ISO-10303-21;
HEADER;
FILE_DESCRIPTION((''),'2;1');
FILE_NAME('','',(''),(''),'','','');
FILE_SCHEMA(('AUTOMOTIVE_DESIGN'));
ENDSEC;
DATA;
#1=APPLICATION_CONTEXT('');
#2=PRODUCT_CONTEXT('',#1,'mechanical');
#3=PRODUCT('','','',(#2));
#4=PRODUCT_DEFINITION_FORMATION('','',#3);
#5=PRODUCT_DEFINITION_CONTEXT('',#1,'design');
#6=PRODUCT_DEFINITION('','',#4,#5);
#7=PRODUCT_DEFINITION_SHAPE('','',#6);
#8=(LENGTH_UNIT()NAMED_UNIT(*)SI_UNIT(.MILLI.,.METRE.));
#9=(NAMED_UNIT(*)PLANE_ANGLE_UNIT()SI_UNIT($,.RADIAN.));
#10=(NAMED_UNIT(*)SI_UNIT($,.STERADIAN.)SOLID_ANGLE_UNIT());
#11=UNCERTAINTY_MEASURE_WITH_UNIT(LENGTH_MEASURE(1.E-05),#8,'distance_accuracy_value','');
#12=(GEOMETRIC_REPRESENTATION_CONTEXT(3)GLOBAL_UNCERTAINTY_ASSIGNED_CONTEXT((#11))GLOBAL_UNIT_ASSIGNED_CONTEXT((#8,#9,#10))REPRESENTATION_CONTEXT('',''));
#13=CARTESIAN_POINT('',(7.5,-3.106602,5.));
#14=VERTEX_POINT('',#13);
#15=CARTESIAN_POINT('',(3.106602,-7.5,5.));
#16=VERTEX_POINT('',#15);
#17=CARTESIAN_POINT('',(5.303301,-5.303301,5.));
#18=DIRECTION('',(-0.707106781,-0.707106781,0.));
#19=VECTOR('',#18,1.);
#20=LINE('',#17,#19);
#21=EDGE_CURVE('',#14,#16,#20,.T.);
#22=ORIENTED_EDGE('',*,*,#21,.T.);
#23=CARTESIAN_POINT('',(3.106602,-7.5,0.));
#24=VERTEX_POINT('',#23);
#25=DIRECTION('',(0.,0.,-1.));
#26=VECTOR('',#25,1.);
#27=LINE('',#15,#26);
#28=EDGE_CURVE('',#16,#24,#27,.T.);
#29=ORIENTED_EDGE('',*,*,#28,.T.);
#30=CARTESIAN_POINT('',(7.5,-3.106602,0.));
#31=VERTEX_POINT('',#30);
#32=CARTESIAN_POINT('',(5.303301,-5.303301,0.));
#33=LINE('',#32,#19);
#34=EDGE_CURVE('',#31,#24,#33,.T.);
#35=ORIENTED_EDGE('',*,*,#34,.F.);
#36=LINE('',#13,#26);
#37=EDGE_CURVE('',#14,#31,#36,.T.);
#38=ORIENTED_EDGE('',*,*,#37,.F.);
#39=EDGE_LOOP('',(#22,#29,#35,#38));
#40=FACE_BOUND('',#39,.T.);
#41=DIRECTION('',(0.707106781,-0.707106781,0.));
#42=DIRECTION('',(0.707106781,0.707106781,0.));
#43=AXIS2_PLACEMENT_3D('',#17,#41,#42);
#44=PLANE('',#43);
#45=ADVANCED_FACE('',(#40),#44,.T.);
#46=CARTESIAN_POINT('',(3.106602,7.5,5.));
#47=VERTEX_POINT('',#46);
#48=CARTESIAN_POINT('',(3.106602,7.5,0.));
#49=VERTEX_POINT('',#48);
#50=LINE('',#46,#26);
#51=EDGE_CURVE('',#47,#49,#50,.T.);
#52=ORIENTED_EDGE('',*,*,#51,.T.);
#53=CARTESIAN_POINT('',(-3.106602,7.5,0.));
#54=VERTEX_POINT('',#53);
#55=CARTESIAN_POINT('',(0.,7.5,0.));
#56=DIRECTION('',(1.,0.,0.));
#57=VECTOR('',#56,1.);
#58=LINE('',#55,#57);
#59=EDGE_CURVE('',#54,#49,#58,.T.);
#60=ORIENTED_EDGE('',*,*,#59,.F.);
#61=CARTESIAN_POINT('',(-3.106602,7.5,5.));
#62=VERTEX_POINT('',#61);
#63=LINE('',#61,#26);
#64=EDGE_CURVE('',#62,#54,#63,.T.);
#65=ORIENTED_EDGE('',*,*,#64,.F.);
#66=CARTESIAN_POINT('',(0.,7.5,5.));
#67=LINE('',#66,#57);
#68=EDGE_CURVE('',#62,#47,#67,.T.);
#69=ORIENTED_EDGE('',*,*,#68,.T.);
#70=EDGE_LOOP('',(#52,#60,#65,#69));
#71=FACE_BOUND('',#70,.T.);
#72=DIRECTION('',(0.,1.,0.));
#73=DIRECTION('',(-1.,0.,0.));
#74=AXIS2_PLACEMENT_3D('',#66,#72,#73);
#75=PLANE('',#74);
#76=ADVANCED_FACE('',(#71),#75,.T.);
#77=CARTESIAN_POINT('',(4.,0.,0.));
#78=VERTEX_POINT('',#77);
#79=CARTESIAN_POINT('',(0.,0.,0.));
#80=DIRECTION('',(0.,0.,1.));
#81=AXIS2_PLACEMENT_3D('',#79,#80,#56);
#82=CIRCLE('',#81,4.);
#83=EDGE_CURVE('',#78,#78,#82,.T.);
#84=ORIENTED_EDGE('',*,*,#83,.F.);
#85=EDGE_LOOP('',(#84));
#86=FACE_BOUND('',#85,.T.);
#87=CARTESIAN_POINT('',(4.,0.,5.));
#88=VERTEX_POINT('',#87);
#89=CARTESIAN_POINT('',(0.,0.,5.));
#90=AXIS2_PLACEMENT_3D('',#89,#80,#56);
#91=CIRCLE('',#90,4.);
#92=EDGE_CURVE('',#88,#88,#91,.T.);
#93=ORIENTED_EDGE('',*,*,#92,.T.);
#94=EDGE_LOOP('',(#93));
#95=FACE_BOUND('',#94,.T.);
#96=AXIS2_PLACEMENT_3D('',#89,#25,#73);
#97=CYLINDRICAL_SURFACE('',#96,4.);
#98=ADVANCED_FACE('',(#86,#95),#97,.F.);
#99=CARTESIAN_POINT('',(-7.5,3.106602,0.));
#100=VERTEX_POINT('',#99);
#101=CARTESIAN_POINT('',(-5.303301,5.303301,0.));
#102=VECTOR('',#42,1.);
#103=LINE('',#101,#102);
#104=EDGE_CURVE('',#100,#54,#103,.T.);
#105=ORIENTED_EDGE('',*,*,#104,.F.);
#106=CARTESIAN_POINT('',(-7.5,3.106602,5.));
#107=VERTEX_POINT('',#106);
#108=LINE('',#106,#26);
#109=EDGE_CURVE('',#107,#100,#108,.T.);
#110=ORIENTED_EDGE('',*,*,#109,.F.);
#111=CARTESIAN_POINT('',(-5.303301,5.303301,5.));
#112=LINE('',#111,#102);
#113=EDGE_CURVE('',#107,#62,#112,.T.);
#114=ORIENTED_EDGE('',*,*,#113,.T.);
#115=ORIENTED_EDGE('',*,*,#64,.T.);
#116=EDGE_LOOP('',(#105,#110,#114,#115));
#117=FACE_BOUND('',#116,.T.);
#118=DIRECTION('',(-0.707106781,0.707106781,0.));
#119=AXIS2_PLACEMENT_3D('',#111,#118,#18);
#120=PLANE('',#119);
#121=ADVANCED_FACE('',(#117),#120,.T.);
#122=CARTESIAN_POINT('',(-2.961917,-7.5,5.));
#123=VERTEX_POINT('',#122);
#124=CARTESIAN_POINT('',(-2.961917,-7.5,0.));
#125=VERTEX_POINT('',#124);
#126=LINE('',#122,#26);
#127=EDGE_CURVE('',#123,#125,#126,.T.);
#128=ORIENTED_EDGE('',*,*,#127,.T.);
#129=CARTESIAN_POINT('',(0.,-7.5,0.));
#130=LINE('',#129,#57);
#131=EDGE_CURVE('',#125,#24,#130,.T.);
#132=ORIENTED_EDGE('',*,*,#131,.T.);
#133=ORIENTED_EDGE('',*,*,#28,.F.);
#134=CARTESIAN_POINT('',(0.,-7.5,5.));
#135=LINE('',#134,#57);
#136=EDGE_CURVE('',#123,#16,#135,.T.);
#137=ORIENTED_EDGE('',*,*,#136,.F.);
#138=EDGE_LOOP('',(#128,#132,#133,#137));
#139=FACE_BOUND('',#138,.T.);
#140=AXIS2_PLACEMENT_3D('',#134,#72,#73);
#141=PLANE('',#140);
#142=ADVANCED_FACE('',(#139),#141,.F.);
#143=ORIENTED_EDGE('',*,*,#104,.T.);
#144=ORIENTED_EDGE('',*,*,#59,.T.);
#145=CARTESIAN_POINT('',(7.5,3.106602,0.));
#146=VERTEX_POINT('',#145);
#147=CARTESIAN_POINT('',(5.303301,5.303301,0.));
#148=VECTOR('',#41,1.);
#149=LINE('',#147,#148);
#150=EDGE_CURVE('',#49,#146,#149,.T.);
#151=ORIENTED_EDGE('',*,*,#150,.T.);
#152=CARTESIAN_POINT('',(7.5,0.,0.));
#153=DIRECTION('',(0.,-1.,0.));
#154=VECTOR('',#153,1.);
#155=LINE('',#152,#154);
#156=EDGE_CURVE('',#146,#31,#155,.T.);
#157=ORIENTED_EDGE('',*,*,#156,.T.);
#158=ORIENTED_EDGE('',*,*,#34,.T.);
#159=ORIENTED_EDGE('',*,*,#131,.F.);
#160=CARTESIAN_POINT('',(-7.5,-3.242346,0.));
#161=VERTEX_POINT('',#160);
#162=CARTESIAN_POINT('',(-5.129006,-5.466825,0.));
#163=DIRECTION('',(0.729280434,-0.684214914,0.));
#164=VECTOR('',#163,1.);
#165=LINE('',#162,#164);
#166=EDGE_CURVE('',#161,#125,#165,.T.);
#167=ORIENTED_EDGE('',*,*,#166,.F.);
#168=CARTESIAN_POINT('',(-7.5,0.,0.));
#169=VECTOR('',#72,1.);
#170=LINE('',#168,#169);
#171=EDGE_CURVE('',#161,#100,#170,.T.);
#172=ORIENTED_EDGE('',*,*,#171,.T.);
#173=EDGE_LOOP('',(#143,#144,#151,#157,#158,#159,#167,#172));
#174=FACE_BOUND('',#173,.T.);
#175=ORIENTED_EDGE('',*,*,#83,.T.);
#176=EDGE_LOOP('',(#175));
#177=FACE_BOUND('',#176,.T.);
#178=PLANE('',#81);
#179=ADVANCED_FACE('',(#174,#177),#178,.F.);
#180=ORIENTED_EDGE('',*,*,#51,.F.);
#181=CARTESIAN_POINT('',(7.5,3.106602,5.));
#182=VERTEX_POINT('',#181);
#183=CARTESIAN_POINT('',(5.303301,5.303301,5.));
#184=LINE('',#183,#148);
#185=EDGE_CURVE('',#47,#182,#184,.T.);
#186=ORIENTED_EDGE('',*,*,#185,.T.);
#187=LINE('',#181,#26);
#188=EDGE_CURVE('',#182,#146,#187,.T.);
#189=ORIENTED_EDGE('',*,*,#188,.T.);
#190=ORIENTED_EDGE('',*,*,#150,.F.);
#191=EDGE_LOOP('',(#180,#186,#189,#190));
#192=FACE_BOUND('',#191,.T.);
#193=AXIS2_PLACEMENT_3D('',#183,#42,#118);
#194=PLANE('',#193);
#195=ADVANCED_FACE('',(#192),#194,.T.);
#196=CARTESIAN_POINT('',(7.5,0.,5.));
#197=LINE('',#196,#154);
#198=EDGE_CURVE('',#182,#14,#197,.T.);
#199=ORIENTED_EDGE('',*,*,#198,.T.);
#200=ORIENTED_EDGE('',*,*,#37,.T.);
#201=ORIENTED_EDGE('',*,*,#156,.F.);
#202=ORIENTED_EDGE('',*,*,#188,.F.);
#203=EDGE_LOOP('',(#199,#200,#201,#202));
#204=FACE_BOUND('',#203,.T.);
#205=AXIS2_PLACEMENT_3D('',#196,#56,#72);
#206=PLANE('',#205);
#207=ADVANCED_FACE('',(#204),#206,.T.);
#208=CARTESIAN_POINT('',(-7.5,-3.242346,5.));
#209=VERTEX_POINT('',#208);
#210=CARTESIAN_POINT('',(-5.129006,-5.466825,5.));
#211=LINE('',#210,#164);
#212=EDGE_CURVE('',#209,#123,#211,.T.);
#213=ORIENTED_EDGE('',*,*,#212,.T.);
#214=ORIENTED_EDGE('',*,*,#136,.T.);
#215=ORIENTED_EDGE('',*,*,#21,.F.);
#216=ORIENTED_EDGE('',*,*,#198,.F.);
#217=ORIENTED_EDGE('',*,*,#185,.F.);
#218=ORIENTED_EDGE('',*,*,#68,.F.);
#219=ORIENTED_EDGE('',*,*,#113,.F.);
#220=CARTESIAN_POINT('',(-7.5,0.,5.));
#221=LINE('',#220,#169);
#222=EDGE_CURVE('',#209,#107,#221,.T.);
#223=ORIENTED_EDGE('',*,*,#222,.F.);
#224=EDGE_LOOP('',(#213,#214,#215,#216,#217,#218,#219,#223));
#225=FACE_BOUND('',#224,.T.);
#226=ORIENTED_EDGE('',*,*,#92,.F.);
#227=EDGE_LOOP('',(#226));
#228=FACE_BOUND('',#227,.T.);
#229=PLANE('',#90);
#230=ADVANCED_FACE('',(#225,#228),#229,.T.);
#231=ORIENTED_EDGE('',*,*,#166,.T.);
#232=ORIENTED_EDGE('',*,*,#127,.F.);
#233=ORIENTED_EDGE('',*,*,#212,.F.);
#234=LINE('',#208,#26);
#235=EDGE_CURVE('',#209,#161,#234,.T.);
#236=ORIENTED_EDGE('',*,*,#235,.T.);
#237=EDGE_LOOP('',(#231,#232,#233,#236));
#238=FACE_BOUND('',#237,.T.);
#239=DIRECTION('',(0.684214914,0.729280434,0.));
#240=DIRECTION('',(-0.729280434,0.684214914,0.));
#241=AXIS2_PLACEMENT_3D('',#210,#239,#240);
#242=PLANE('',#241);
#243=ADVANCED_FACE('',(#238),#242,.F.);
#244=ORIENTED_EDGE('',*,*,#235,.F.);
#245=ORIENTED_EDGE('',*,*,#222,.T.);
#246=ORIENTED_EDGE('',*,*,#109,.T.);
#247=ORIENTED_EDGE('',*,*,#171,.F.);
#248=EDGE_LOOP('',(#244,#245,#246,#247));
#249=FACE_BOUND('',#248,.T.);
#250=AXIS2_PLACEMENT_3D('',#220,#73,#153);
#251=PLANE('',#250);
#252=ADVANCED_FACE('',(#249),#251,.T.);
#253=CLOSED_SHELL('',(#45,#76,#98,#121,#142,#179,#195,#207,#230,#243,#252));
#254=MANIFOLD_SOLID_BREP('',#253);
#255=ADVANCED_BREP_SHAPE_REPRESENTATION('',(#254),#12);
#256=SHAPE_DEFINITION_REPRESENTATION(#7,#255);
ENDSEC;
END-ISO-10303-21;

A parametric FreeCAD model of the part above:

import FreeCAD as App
import Part
import Sketcher
Q = App.Units.Quantity


def add_polygon(sketch, points):
    """Adds a closed chain of lines whose ends are joined by coincident constraints."""
    first, n = sketch.GeometryCount, len(points)
    for a, b in zip(points, points[1:] + points[:1]):
        sketch.addGeometry(Part.LineSegment(App.Vector(*a, 0), App.Vector(*b, 0)), False)
    for i in range(n):
        sketch.addConstraint(Sketcher.Constraint("Coincident", first + i, 2, first + (i + 1) % n, 1))

doc = App.newDocument("Part")
body = doc.addObject("PartDesign::Body", "Body")

sketch1 = body.newObject("Sketcher::SketchObject", "Sketch")
sketch1.AttachmentSupport = (doc.getObject("XY_Plane"), [""])
sketch1.MapMode = "FlatFace"
add_polygon(sketch1, [(7.5, 3.1), (3.1, 7.5), (-3.1, 7.5), (-7.5, 3.1), (-7.5, -3.2), (-5.3, -5.3), (-3, -7.5), (3.1, -7.5), (7.5, -3.1)])
sketch1.addGeometry(Part.Circle(App.Vector(0, 0, 0), App.Vector(0, 0, 1), 4), False)
sketch1.addConstraint(Sketcher.Constraint("Horizontal", 1))
sketch1.addConstraint(Sketcher.Constraint("Vertical", 3))
sketch1.addConstraint(Sketcher.Constraint("Horizontal", 6))
sketch1.addConstraint(Sketcher.Constraint("Vertical", 8))
sketch1.addConstraint(Sketcher.Constraint("Coincident", 9, 3, -1, 1))
sketch1.addConstraint(Sketcher.Constraint("Symmetric", 1, 2, 6, 2, -1, 1))
sketch1.addConstraint(Sketcher.Constraint("Symmetric", 2, 2, 7, 2, -1, 1))
sketch1.addConstraint(Sketcher.Constraint("Perpendicular", 0, 2))
sketch1.addConstraint(Sketcher.Constraint("Parallel", 4, 5))
sketch1.addConstraint(Sketcher.Constraint("Horizontal", 2, 2, 8, 2))
sketch1.addConstraint(Sketcher.Constraint("Vertical", 0, 2, 6, 2))
sketch1.addConstraint(Sketcher.Constraint("Equal", 1, 8))
sketch1.addConstraint(Sketcher.Constraint("Diameter", 9, Q("8 mm")))
sketch1.addConstraint(Sketcher.Constraint("DistanceY", 5, 2, 1, 2, Q("15 mm")))
sketch1.addConstraint(Sketcher.Constraint("DistanceX", 6, 1, 6, 2, Q("6.068519 mm")))
sketch1.addConstraint(Sketcher.Constraint("DistanceX", -1, 1, 0, 2, Q("3.106602 mm")))
sketch1.addConstraint(Sketcher.Constraint("DistanceX", 4, 2, -1, 1, Q("5.303301 mm")))
sketch1.addConstraint(Sketcher.Constraint("DistanceY", 4, 2, -1, 1, Q("5.303301 mm")))
pad1 = body.newObject("PartDesign::Pad", "Pad")
pad1.Profile = sketch1
pad1.Length = 5

doc.recompute()
